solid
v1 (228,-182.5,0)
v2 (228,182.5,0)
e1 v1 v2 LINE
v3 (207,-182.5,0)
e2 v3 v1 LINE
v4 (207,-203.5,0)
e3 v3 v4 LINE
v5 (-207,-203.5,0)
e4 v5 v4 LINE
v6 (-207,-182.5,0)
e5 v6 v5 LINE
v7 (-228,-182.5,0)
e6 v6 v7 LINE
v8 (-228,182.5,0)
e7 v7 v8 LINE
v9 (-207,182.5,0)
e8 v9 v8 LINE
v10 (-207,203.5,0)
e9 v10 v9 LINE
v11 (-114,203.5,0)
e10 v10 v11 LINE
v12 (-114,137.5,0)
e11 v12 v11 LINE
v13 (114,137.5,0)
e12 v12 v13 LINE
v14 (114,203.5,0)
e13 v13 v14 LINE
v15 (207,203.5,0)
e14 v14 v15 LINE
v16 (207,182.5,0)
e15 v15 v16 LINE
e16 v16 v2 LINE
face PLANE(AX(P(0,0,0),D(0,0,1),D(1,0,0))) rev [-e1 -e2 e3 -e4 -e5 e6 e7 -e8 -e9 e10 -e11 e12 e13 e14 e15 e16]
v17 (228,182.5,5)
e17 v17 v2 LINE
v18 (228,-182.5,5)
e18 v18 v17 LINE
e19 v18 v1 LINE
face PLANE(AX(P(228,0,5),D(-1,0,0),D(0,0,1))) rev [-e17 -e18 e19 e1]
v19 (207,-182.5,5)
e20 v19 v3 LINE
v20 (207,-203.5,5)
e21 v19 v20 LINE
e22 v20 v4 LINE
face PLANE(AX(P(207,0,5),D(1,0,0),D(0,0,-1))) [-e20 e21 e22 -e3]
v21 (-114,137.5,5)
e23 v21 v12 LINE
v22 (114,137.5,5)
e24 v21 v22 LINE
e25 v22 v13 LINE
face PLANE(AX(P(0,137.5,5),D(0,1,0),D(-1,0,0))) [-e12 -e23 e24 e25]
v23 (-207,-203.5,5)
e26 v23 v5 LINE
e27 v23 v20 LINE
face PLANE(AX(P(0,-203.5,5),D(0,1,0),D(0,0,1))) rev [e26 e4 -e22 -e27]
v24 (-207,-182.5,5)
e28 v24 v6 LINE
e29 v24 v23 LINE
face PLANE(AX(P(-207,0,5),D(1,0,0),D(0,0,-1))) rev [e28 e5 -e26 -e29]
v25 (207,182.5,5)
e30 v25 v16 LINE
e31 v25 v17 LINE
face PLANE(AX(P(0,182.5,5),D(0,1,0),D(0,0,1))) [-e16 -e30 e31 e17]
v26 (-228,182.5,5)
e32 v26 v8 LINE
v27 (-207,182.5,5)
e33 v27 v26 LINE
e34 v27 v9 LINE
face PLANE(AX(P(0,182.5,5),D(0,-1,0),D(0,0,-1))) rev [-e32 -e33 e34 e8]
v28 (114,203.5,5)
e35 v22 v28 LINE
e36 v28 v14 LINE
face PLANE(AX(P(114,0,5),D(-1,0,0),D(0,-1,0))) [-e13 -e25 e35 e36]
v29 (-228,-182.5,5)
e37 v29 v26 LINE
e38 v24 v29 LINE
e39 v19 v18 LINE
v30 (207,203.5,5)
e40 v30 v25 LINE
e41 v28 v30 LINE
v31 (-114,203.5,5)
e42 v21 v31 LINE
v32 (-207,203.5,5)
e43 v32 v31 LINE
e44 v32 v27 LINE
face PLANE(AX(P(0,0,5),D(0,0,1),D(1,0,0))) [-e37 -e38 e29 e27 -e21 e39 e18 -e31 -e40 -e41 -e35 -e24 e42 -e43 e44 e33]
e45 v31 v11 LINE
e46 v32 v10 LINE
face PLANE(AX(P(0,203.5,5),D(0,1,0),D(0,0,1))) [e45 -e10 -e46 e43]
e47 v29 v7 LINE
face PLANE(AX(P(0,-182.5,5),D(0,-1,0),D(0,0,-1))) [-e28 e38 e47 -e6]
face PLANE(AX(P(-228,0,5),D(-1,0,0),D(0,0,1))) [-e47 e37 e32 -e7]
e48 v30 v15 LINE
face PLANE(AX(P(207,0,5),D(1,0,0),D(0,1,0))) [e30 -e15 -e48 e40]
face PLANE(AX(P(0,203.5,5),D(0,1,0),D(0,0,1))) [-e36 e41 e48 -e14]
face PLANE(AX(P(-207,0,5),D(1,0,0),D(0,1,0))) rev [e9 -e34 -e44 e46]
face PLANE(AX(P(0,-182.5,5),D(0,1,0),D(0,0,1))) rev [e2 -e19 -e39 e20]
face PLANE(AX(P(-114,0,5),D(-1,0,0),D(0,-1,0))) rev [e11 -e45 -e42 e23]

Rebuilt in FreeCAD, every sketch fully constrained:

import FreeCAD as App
import Part
import Sketcher
from FreeCAD import Vector

doc = App.newDocument("Part")
body = doc.addObject("PartDesign::Body", "Body")

# Sketch on XY plane
sketch1 = body.newObject("Sketcher::SketchObject", "Sketch")
sketch1.AttachmentSupport = (doc.getObject("XY_Plane"), [""])
sketch1.MapMode = "FlatFace"
sketch1.addGeometry([
    Part.LineSegment(Vector(114, 138, 0), Vector(-114, 138, 0)),  # 0
    Part.LineSegment(Vector(-114, 138, 0), Vector(-114, 204, 0)),  # 1
    Part.LineSegment(Vector(-114, 204, 0), Vector(-207, 204, 0)),  # 2
    Part.LineSegment(Vector(-207, 204, 0), Vector(-207, 182, 0)),  # 3
    Part.LineSegment(Vector(-207, 182, 0), Vector(-228, 182, 0)),  # 4
    Part.LineSegment(Vector(-228, 182, 0), Vector(-228, -182, 0)),  # 5
    Part.LineSegment(Vector(-228, -182, 0), Vector(-207, -182, 0)),  # 6
    Part.LineSegment(Vector(-207, -182, 0), Vector(-207, -204, 0)),  # 7
    Part.LineSegment(Vector(-207, -204, 0), Vector(207, -204, 0)),  # 8
    Part.LineSegment(Vector(207, -204, 0), Vector(207, -182, 0)),  # 9
    Part.LineSegment(Vector(207, -182, 0), Vector(228, -182, 0)),  # 10
    Part.LineSegment(Vector(228, -182, 0), Vector(228, 182, 0)),  # 11
    Part.LineSegment(Vector(228, 182, 0), Vector(207, 182, 0)),  # 12
    Part.LineSegment(Vector(207, 182, 0), Vector(207, 204, 0)),  # 13
    Part.LineSegment(Vector(207, 204, 0), Vector(114, 204, 0)),  # 14
    Part.LineSegment(Vector(114, 204, 0), Vector(114, 138, 0)),  # 15
], False)
sketch1.addConstraint([
    Sketcher.Constraint("Coincident", 0, 2, 1, 1),
    Sketcher.Constraint("Coincident", 1, 2, 2, 1),
    Sketcher.Constraint("Coincident", 2, 2, 3, 1),
    Sketcher.Constraint("Coincident", 3, 2, 4, 1),
    Sketcher.Constraint("Coincident", 4, 2, 5, 1),
    Sketcher.Constraint("Coincident", 5, 2, 6, 1),
    Sketcher.Constraint("Coincident", 6, 2, 7, 1),
    Sketcher.Constraint("Coincident", 7, 2, 8, 1),
    Sketcher.Constraint("Coincident", 8, 2, 9, 1),
    Sketcher.Constraint("Coincident", 9, 2, 10, 1),
    Sketcher.Constraint("Coincident", 10, 2, 11, 1),
    Sketcher.Constraint("Coincident", 11, 2, 12, 1),
    Sketcher.Constraint("Coincident", 12, 2, 13, 1),
    Sketcher.Constraint("Coincident", 13, 2, 14, 1),
    Sketcher.Constraint("Coincident", 14, 2, 15, 1),
    Sketcher.Constraint("Coincident", 15, 2, 0, 1),
    Sketcher.Constraint("Horizontal", 0),
    Sketcher.Constraint("Vertical", 1),
    Sketcher.Constraint("Horizontal", 2),
    Sketcher.Constraint("Vertical", 3),
    Sketcher.Constraint("Horizontal", 4),
    Sketcher.Constraint("Vertical", 5),
    Sketcher.Constraint("Horizontal", 6),
    Sketcher.Constraint("Vertical", 7),
    Sketcher.Constraint("Horizontal", 8),
    Sketcher.Constraint("Vertical", 9),
    Sketcher.Constraint("Horizontal", 10),
    Sketcher.Constraint("Vertical", 11),
    Sketcher.Constraint("Horizontal", 12),
    Sketcher.Constraint("Vertical", 13),
    Sketcher.Constraint("Horizontal", 14),
    Sketcher.Constraint("Vertical", 15),
    Sketcher.Constraint("Symmetric", 2, 2, 8, 2, -1, 1),
    Sketcher.Constraint("Symmetric", 4, 2, 10, 2, -1, 1),
    Sketcher.Constraint("Symmetric", 6, 2, 12, 2, -1, 1),
    Sketcher.Constraint("Symmetric", 6, 2, 9, 2, -2),
    Sketcher.Constraint("Symmetric", 1, 2, 14, 2, -2),
    Sketcher.Constraint("Equal", 12, 3),
    Sketcher.Constraint("DistanceX", 0, 2, 0, 1, 228.0),
    Sketcher.Constraint("DistanceX", 2, 2, 2, 1, 93.0),
    Sketcher.Constraint("DistanceX", 4, 2, 4, 1, 21.0),
    Sketcher.Constraint("DistanceY", 1, 1, 1, 2, 66.0),
    Sketcher.Constraint("DistanceY", 5, 2, 5, 1, 365.0),
])
pad1 = body.newObject("PartDesign::Pad", "Pad")
pad1.Profile = sketch1
pad1.Length = 5

doc.recompute()
